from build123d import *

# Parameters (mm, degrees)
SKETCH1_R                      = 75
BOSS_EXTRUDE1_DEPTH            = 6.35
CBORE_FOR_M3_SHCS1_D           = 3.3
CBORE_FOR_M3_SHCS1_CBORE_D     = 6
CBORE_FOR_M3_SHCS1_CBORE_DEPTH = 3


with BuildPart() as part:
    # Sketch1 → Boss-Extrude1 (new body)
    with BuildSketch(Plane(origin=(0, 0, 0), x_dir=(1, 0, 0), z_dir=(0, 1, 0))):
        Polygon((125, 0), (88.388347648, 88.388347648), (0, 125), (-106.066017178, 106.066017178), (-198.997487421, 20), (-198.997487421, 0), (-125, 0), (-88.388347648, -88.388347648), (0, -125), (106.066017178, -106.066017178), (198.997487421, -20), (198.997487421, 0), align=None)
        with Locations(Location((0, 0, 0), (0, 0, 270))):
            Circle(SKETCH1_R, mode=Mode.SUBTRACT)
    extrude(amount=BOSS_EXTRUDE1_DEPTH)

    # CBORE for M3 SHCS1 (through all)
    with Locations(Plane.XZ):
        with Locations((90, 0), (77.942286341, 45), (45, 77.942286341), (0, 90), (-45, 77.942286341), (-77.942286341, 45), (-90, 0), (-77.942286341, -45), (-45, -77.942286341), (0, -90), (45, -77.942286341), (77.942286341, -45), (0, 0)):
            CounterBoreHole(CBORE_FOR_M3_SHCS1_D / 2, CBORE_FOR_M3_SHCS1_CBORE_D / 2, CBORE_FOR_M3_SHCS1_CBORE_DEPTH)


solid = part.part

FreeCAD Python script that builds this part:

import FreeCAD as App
import Part
import Sketcher
Q = App.Units.Quantity

doc = App.newDocument("Part")
params = doc.addObject("Spreadsheet::Sheet", "Params")
for row, (alias, value) in enumerate([
    ("sketch1_diameter", "150 mm"),
    ("sketch1_height", "20 mm"),
    ("pad1_length", "6.35 mm"),
    ("sketch2_diameter", "3.3 mm"),
    ("hole_diameter", "3.3 mm"),
    ("hole_cbore_diameter", "6 mm"),
    ("hole_cbore_depth", "3 mm"),
], start=1):
    params.set(f"A{row}", alias)
    params.set(f"B{row}", "=" + value)
    params.setAlias(f"B{row}", alias)

body = doc.addObject("PartDesign::Body", "Body")

# Sketch on XZ plane
sketch1 = doc.addObject("Sketcher::SketchObject", "Sketch")
body.addObject(sketch1)
sketch1.AttachmentSupport = (doc.XZ_Plane, [""])
sketch1.MapMode = "FlatFace"
sketch1.addGeometry([
    Part.LineSegment(App.Vector(125, 0, 0), App.Vector(88.388348, -88.388348, 0)),  # 0
    Part.LineSegment(App.Vector(88.388348, -88.388348, 0), App.Vector(0, -125, 0)),  # 1
    Part.LineSegment(App.Vector(0, -125, 0), App.Vector(-106.066017, -106.066017, 0)),  # 2
    Part.LineSegment(App.Vector(-106.066017, -106.066017, 0), App.Vector(-198.997487, -20, 0)),  # 3
    Part.LineSegment(App.Vector(-198.997487, -20, 0), App.Vector(-198.997487, 0, 0)),  # 4
    Part.LineSegment(App.Vector(-198.997487, 0, 0), App.Vector(-125, 0, 0)),  # 5
    Part.LineSegment(App.Vector(-125, 0, 0), App.Vector(-88.388348, 88.388348, 0)),  # 6
    Part.LineSegment(App.Vector(-88.388348, 88.388348, 0), App.Vector(0, 125, 0)),  # 7
    Part.LineSegment(App.Vector(0, 125, 0), App.Vector(106.066017, 106.066017, 0)),  # 8
    Part.LineSegment(App.Vector(106.066017, 106.066017, 0), App.Vector(198.997487, 20, 0)),  # 9
    Part.LineSegment(App.Vector(198.997487, 20, 0), App.Vector(198.997487, 0, 0)),  # 10
    Part.LineSegment(App.Vector(198.997487, 0, 0), App.Vector(125, 0, 0)),  # 11
    Part.Circle(App.Vector(0, 0, 0), App.Vector(0, 0, 1), 75),  # 12
], False)
sketch1.addConstraint([
    Sketcher.Constraint("Coincident", 0, 2, 1, 1),
    Sketcher.Constraint("Coincident", 1, 2, 2, 1),
    Sketcher.Constraint("Coincident", 2, 2, 3, 1),
    Sketcher.Constraint("Coincident", 3, 2, 4, 1),
    Sketcher.Constraint("Coincident", 4, 2, 5, 1),
    Sketcher.Constraint("Coincident", 5, 2, 6, 1),
    Sketcher.Constraint("Coincident", 6, 2, 7, 1),
    Sketcher.Constraint("Coincident", 7, 2, 8, 1),
    Sketcher.Constraint("Coincident", 8, 2, 9, 1),
    Sketcher.Constraint("Coincident", 9, 2, 10, 1),
    Sketcher.Constraint("Coincident", 10, 2, 11, 1),
    Sketcher.Constraint("Coincident", 11, 2, 0, 1),
    Sketcher.Constraint("Vertical", 4),
    Sketcher.Constraint("Horizontal", 5),
    Sketcher.Constraint("Vertical", 10),
    Sketcher.Constraint("Horizontal", 11),
    Sketcher.Constraint("Coincident", 12, 3, -1, 1),
    Sketcher.Constraint("Symmetric", 0, 2, 6, 2, -1, 1),
    Sketcher.Constraint("Symmetric", 1, 2, 7, 2, -1, 1),
    Sketcher.Constraint("Symmetric", 2, 2, 8, 2, -1, 1),
    Sketcher.Constraint("Symmetric", 3, 2, 9, 2, -1, 1),
    Sketcher.Constraint("Symmetric", 5, 2, 11, 2, -1, 1),
    Sketcher.Constraint("PointOnObject", 1, 2, -2),
    Sketcher.Constraint("PointOnObject", 4, 2, -1),
    Sketcher.Constraint("Equal", 0, 1),
    Sketcher.Constraint("Diameter", 12, 150.0),
    Sketcher.Constraint("DistanceY", 4, 1, 4, 2, 20.0),
    Sketcher.Constraint("DistanceY", 1, 2, -1, 1, 125.0),
    Sketcher.Constraint("DistanceX", 5, 2, -1, 1, 125.0),
    Sketcher.Constraint("Angle", 0, Q("-112.5 deg")),
    Sketcher.Constraint("Distance", 2, 107.742729),
    Sketcher.Constraint("DistanceX", 5, 1, 5, 2, 73.997487),
    Sketcher.Constraint("DistanceY", 2, 2, 0, 2, 17.67767),
])
sketch1.setExpression("Constraints[25]", "Params.sketch1_diameter")
sketch1.setExpression("Constraints[26]", "Params.sketch1_height")
pad1 = doc.addObject("PartDesign::Pad", "Pad")
body.addObject(pad1)
pad1.Profile = sketch1
pad1.setExpression("Length", "Params.pad1_length")
pad1.Reversed = True

# Sketch on XZ plane
sketch2 = doc.addObject("Sketcher::SketchObject", "Sketch001")
body.addObject(sketch2)
sketch2.AttachmentSupport = (doc.XZ_Plane, [""])
sketch2.MapMode = "FlatFace"
sketch2.addGeometry([
    Part.Circle(App.Vector(90, 0, 0), App.Vector(0, 0, 1), 1.65),  # 0
    Part.Circle(App.Vector(77.942286, 45, 0), App.Vector(0, 0, 1), 1.65),  # 1
    Part.Circle(App.Vector(45, 77.942286, 0), App.Vector(0, 0, 1), 1.65),  # 2
    Part.Circle(App.Vector(0, 90, 0), App.Vector(0, 0, 1), 1.65),  # 3
    Part.Circle(App.Vector(-45, 77.942286, 0), App.Vector(0, 0, 1), 1.65),  # 4
    Part.Circle(App.Vector(-77.942286, 45, 0), App.Vector(0, 0, 1), 1.65),  # 5
    Part.Circle(App.Vector(-90, 0, 0), App.Vector(0, 0, 1), 1.65),  # 6
    Part.Circle(App.Vector(-77.942286, -45, 0), App.Vector(0, 0, 1), 1.65),  # 7
    Part.Circle(App.Vector(-45, -77.942286, 0), App.Vector(0, 0, 1), 1.65),  # 8
    Part.Circle(App.Vector(0, -90, 0), App.Vector(0, 0, 1), 1.65),  # 9
    Part.Circle(App.Vector(45, -77.942286, 0), App.Vector(0, 0, 1), 1.65),  # 10
    Part.Circle(App.Vector(77.942286, -45, 0), App.Vector(0, 0, 1), 1.65),  # 11
    Part.Circle(App.Vector(0, 0, 0), App.Vector(0, 0, 1), 1.65),  # 12
], False)
sketch2.addConstraint([
    Sketcher.Constraint("Coincident", 12, 3, -1, 1),
    Sketcher.Constraint("Equal", 0, 1),
    Sketcher.Constraint("Equal", 1, 2),
    Sketcher.Constraint("Equal", 2, 3),
    Sketcher.Constraint("Equal", 3, 4),
    Sketcher.Constraint("Equal", 4, 5),
    Sketcher.Constraint("Equal", 5, 6),
    Sketcher.Constraint("Equal", 6, 7),
    Sketcher.Constraint("Equal", 7, 8),
    Sketcher.Constraint("Equal", 8, 9),
    Sketcher.Constraint("Equal", 9, 10),
    Sketcher.Constraint("Equal", 10, 11),
    Sketcher.Constraint("Equal", 11, 12),
    Sketcher.Constraint("Symmetric", 0, 3, 6, 3, -1, 1),
    Sketcher.Constraint("Symmetric", 1, 3, 7, 3, -1, 1),
    Sketcher.Constraint("Symmetric", 2, 3, 8, 3, -1, 1),
    Sketcher.Constraint("Symmetric", 3, 3, 9, 3, -1, 1),
    Sketcher.Constraint("Symmetric", 4, 3, 10, 3, -1, 1),
    Sketcher.Constraint("Symmetric", 5, 3, 11, 3, -1, 1),
    Sketcher.Constraint("Symmetric", 2, 3, 4, 3, -2),
    Sketcher.Constraint("Symmetric", 1, 3, 5, 3, -2),
    Sketcher.Constraint("PointOnObject", 0, 3, -1),
    Sketcher.Constraint("PointOnObject", 3, 3, -2),
    Sketcher.Constraint("Diameter", 0, 3.3),
    Sketcher.Constraint("DistanceX", -1, 1, 0, 3, 90.0),
    Sketcher.Constraint("DistanceY", -1, 1, 1, 3, 45.0),
    Sketcher.Constraint("DistanceX", -1, 1, 2, 3, 45.0),
    Sketcher.Constraint("DistanceY", -1, 1, 3, 3, 90.0),
    Sketcher.Constraint("DistanceX", -1, 1, 1, 3, 77.942286),
    Sketcher.Constraint("DistanceY", -1, 1, 2, 3, 77.942286),
])
sketch2.setExpression("Constraints[23]", "Params.sketch2_diameter")
doc.recompute()
hole = doc.addObject("PartDesign::Hole", "Hole")
body.addObject(hole)
hole.Profile = sketch2
hole.ThreadType = "None"
hole.setExpression("Diameter", "Params.hole_diameter")
hole.DepthType = "ThroughAll"
hole.HoleCutType = "Counterbore"
hole.setExpression("HoleCutDiameter", "Params.hole_cbore_diameter")
hole.setExpression("HoleCutDepth", "Params.hole_cbore_depth")

doc.recompute()
